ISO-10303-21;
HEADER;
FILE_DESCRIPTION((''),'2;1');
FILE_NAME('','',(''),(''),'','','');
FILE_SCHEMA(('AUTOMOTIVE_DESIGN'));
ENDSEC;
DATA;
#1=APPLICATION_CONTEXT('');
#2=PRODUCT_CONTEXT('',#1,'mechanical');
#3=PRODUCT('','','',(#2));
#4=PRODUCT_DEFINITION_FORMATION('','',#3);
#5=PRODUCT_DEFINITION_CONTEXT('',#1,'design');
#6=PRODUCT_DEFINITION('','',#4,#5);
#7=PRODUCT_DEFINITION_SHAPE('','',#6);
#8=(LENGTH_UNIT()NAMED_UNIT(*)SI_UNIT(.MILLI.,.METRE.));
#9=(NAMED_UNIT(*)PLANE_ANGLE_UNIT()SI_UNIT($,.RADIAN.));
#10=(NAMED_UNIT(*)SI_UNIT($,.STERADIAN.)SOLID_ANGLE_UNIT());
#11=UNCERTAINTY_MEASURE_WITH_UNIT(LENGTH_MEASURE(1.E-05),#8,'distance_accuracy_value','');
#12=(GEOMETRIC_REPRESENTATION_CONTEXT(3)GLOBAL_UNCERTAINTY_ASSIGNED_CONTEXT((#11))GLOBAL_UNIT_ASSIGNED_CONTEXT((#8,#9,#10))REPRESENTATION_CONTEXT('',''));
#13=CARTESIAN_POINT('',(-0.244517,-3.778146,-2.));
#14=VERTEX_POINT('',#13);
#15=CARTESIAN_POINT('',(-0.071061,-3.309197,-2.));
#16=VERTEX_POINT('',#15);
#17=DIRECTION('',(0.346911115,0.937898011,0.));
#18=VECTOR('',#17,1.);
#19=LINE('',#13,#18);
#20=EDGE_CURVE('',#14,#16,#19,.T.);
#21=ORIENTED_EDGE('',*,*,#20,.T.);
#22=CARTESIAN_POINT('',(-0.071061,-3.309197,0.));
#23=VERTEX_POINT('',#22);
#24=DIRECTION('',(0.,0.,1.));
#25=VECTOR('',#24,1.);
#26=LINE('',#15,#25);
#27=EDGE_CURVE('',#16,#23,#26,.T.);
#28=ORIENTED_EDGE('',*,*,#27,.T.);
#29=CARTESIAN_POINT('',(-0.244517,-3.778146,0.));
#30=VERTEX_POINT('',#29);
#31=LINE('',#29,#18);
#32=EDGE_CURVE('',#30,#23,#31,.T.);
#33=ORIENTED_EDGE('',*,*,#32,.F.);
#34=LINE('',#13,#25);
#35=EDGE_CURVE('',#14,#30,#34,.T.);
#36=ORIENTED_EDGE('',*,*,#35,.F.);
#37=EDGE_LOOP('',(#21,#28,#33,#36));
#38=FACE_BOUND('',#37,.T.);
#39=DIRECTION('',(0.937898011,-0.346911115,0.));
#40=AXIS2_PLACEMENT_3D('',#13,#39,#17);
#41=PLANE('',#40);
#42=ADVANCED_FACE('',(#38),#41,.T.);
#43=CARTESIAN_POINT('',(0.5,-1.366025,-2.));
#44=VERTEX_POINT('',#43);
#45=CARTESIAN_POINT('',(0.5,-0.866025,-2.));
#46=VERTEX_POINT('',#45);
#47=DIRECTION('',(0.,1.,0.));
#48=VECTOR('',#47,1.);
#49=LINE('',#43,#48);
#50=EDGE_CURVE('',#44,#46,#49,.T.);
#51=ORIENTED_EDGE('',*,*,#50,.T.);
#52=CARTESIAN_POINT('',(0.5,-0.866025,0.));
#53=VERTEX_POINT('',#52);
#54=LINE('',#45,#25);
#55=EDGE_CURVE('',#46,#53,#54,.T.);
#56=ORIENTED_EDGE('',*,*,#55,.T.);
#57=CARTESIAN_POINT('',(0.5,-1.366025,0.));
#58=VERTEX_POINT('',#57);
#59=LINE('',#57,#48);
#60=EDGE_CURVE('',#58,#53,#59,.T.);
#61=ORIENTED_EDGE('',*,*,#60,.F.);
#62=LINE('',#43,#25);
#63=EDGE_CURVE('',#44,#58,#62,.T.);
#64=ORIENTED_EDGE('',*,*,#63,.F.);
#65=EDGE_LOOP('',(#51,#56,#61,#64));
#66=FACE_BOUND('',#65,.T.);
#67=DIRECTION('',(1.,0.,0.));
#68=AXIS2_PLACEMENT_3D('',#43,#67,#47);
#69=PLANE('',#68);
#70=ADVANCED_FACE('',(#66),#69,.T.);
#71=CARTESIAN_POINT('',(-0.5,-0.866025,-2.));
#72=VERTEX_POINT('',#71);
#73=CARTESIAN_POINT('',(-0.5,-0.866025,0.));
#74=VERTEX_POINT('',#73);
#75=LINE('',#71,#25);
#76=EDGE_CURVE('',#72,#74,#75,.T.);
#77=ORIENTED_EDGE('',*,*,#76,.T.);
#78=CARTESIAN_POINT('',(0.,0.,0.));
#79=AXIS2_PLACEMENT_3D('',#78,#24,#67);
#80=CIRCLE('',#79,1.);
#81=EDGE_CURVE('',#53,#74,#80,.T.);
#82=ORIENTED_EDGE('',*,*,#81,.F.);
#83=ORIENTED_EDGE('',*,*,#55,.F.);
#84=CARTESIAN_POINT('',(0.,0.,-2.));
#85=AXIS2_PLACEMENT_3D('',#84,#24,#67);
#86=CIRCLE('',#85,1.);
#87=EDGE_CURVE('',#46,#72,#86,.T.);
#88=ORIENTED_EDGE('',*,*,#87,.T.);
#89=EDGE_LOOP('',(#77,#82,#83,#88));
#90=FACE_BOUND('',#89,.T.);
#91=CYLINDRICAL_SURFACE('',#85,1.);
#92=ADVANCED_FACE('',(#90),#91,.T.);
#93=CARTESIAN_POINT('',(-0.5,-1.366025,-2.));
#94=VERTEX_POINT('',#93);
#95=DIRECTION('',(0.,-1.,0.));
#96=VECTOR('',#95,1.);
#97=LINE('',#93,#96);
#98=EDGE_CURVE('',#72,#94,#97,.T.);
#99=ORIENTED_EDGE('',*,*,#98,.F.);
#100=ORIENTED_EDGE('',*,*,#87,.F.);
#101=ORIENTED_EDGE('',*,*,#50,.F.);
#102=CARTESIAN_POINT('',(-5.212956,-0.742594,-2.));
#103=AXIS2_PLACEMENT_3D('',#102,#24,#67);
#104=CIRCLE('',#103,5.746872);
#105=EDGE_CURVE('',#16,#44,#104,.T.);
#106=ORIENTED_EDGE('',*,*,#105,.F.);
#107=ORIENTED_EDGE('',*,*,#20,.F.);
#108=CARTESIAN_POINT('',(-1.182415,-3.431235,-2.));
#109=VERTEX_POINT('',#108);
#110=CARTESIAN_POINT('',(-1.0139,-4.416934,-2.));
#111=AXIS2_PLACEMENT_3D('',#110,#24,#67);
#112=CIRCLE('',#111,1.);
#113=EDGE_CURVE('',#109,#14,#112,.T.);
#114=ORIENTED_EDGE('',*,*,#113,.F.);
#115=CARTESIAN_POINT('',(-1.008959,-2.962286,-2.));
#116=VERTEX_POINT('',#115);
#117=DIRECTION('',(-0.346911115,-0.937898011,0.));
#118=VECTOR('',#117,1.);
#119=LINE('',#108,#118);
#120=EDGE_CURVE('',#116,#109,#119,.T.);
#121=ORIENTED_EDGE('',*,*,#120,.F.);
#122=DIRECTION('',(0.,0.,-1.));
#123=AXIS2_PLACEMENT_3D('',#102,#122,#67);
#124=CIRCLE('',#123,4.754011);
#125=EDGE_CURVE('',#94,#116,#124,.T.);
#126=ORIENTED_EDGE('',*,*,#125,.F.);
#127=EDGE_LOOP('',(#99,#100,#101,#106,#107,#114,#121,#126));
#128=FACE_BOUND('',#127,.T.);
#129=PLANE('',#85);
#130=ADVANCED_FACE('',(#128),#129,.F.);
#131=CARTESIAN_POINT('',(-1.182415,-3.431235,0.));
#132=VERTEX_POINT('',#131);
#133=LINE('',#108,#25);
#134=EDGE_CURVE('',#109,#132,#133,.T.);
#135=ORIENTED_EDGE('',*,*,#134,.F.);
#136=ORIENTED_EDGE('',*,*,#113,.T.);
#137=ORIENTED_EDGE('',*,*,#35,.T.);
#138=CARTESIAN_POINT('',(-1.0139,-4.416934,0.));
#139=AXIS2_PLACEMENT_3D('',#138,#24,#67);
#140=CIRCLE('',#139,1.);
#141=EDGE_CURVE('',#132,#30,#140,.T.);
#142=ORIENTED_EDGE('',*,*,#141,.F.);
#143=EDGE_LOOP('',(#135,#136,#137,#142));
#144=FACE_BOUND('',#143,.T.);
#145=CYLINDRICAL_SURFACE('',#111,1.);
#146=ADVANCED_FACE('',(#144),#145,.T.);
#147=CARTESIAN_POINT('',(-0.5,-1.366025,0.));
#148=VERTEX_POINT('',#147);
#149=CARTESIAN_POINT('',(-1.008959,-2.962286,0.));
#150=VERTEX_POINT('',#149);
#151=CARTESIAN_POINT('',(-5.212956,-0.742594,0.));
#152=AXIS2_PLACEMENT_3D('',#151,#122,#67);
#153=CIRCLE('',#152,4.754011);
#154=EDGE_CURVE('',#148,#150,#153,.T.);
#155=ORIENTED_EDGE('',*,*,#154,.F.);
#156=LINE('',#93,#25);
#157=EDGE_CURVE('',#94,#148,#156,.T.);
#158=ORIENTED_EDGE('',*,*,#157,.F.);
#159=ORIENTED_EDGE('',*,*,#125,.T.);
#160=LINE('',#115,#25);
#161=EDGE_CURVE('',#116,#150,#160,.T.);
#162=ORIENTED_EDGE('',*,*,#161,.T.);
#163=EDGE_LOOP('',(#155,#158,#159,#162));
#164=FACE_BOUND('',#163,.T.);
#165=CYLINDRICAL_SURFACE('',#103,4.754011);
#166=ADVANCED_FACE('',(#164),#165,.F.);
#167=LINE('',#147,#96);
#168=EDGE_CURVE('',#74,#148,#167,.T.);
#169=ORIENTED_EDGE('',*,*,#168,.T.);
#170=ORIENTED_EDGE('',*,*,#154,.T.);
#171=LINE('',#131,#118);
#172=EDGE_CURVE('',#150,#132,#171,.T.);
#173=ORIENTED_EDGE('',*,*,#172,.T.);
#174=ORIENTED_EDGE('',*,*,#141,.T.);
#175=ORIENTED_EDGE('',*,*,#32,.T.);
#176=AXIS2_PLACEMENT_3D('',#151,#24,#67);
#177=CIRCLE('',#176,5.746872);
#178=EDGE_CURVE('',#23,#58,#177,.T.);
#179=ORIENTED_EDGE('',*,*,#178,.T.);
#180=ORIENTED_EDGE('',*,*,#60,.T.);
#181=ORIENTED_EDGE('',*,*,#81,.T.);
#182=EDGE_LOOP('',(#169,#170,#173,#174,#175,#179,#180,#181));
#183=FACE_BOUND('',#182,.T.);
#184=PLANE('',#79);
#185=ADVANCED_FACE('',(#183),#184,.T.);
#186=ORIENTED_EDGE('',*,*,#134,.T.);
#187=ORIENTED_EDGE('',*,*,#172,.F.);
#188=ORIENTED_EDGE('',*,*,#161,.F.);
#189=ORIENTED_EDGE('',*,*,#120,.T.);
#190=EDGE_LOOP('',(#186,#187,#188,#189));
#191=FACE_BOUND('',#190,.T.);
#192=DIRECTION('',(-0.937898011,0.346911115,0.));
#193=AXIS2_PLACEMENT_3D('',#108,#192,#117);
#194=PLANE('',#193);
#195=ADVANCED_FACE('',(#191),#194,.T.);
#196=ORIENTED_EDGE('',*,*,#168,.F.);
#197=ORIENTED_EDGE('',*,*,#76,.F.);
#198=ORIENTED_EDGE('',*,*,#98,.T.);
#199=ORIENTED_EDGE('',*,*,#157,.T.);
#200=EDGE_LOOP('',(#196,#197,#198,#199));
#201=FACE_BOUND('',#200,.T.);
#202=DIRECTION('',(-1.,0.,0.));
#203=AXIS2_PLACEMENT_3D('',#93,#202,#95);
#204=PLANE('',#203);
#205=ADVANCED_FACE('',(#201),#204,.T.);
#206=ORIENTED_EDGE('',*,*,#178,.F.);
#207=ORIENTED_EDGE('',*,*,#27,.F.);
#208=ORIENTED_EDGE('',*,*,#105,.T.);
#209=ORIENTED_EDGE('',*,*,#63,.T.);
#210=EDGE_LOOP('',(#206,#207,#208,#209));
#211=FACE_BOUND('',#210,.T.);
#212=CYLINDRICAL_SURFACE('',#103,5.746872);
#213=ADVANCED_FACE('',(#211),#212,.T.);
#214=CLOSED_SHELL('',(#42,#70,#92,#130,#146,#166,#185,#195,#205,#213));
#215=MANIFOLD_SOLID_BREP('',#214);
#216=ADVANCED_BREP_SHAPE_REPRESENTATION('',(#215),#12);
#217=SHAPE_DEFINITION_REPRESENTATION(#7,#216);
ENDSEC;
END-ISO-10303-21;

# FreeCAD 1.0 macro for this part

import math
import FreeCAD as App
import Part
import Sketcher

doc = App.newDocument("Part")
body = doc.addObject("PartDesign::Body", "Body")

sketch1 = body.newObject("Sketcher::SketchObject", "Sketch")
sketch1.AttachmentSupport = (doc.getObject("XY_Plane"), [""])
sketch1.MapMode = "FlatFace"
sketch1.addGeometry([
    Part.LineSegment(App.Vector(0.5, -1.37, 0), App.Vector(0.5, -0.87, 0)),
    Part.ArcOfCircle(Part.Circle(App.Vector(0, 0, 0), App.Vector(0, 0, 1), 1), math.radians(-60), math.radians(240)),
    Part.LineSegment(App.Vector(-0.5, -0.87, 0), App.Vector(-0.5, -1.37, 0)),
    Part.ArcOfCircle(Part.Circle(App.Vector(-5.21, -0.74, 0), App.Vector(0, 0, 1), 4.75), math.radians(-28), math.radians(-8)),
    Part.LineSegment(App.Vector(-1.01, -2.96, 0), App.Vector(-1.18, -3.43, 0)),
    Part.ArcOfCircle(Part.Circle(App.Vector(-1.01, -4.42, 0), App.Vector(0, 0, 1), 1), math.radians(100), math.radians(400)),
    Part.LineSegment(App.Vector(-0.24, -3.78, 0), App.Vector(-0.07, -3.31, 0)),
    Part.ArcOfCircle(Part.Circle(App.Vector(-5.21, -0.74, 0), App.Vector(0, 0, 1), 5.75), math.radians(-27), math.radians(-6)),
], False)
sketch1.addConstraint([
    Sketcher.Constraint("Coincident", 0, 2, 1, 1),
    Sketcher.Constraint("Coincident", 1, 2, 2, 1),
    Sketcher.Constraint("Coincident", 2, 2, 3, 2),
    Sketcher.Constraint("Coincident", 3, 1, 4, 1),
    Sketcher.Constraint("Coincident", 4, 2, 5, 1),
    Sketcher.Constraint("Coincident", 5, 2, 6, 1),
    Sketcher.Constraint("Coincident", 6, 2, 7, 1),
    Sketcher.Constraint("Coincident", 7, 2, 0, 1),
    Sketcher.Constraint("Vertical", 0),
    Sketcher.Constraint("Vertical", 2),
    Sketcher.Constraint("Coincident", 1, 3, -1, 1),
    Sketcher.Constraint("Coincident", 7, 3, 3, 3),
    Sketcher.Constraint("Equal", 1, 5),
    Sketcher.Constraint("Symmetric", 2, 2, 7, 2, -2),
    Sketcher.Constraint("Parallel", 4, 6),
    Sketcher.Constraint("Equal", 4, 6),
    Sketcher.Constraint("Radius", 1, 1.0),
    Sketcher.Constraint("DistanceY", 0, 1, 0, 2, 0.5),
    Sketcher.Constraint("DistanceX", 1, 2, 0, 2, 1.0),
    Sketcher.Constraint("Distance", 4, 0.5),
    Sketcher.Constraint("Radius", 3, 4.754011),
    Sketcher.Constraint("Radius", 7, 5.746872),
    Sketcher.Constraint("DistanceX", 5, 3, -1, 1, 1.0139),
    Sketcher.Constraint("DistanceY", 5, 3, 4, 2, 0.985699),
    Sketcher.Constraint("DistanceX", 4, 2, 5, 2, 0.937898),
])
pad1 = body.newObject("PartDesign::Pad", "Pad")
pad1.Profile = sketch1
pad1.Length = 2
pad1.Reversed = True

doc.recompute()
